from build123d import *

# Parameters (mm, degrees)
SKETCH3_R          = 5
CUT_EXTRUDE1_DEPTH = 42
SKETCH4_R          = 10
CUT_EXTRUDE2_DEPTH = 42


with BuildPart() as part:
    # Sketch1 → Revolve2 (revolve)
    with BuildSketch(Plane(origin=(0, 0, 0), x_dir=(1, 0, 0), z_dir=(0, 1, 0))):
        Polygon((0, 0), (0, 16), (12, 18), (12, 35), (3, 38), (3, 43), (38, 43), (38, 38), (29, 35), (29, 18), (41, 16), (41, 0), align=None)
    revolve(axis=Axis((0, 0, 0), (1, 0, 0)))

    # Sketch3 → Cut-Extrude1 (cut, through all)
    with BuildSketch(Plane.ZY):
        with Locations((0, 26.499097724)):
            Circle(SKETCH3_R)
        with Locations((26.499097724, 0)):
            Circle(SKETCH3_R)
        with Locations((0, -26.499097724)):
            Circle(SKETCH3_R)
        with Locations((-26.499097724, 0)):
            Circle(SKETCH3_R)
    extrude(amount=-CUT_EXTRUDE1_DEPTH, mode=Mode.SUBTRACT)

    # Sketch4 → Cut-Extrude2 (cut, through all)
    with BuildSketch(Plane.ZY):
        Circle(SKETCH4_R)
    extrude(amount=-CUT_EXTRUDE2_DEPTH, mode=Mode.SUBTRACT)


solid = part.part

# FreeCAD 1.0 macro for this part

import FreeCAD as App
import Part
import Sketcher
from FreeCAD import Vector
Q = App.Units.Quantity

doc = App.newDocument("Part")
body = doc.addObject("PartDesign::Body", "Body")

sketch1 = body.newObject("Sketcher::SketchObject", "Sketch")
sketch1.AttachmentSupport = (doc.getObject("XZ_Plane"), [""])
sketch1.MapMode = "FlatFace"
sketch1.addGeometry(Part.LineSegment(Vector(0, -16, 0), Vector(0, 0, 0)), False)
sketch1.addGeometry(Part.LineSegment(Vector(0, 0, 0), Vector(41, 0, 0)), False)
sketch1.addGeometry(Part.LineSegment(Vector(41, 0, 0), Vector(41, -16, 0)), False)
sketch1.addGeometry(Part.LineSegment(Vector(41, -16, 0), Vector(29, -18, 0)), False)
sketch1.addGeometry(Part.LineSegment(Vector(29, -18, 0), Vector(29, -35, 0)), False)
sketch1.addGeometry(Part.LineSegment(Vector(29, -35, 0), Vector(38, -38, 0)), False)
sketch1.addGeometry(Part.LineSegment(Vector(38, -38, 0), Vector(38, -43, 0)), False)
sketch1.addGeometry(Part.LineSegment(Vector(38, -43, 0), Vector(3, -43, 0)), False)
sketch1.addGeometry(Part.LineSegment(Vector(3, -43, 0), Vector(3, -38, 0)), False)
sketch1.addGeometry(Part.LineSegment(Vector(3, -38, 0), Vector(12, -35, 0)), False)
sketch1.addGeometry(Part.LineSegment(Vector(12, -35, 0), Vector(12, -18, 0)), False)
sketch1.addGeometry(Part.LineSegment(Vector(12, -18, 0), Vector(0, -16, 0)), False)
sketch1.addConstraint(Sketcher.Constraint("Coincident", 0, 2, 1, 1))
sketch1.addConstraint(Sketcher.Constraint("Coincident", 1, 2, 2, 1))
sketch1.addConstraint(Sketcher.Constraint("Coincident", 2, 2, 3, 1))
sketch1.addConstraint(Sketcher.Constraint("Coincident", 3, 2, 4, 1))
sketch1.addConstraint(Sketcher.Constraint("Coincident", 4, 2, 5, 1))
sketch1.addConstraint(Sketcher.Constraint("Coincident", 5, 2, 6, 1))
sketch1.addConstraint(Sketcher.Constraint("Coincident", 6, 2, 7, 1))
sketch1.addConstraint(Sketcher.Constraint("Coincident", 7, 2, 8, 1))
sketch1.addConstraint(Sketcher.Constraint("Coincident", 8, 2, 9, 1))
sketch1.addConstraint(Sketcher.Constraint("Coincident", 9, 2, 10, 1))
sketch1.addConstraint(Sketcher.Constraint("Coincident", 10, 2, 11, 1))
sketch1.addConstraint(Sketcher.Constraint("Coincident", 11, 2, 0, 1))
sketch1.addConstraint(Sketcher.Constraint("Vertical", 0))
sketch1.addConstraint(Sketcher.Constraint("Horizontal", 1))
sketch1.addConstraint(Sketcher.Constraint("Vertical", 2))
sketch1.addConstraint(Sketcher.Constraint("Vertical", 4))
sketch1.addConstraint(Sketcher.Constraint("Vertical", 6))
sketch1.addConstraint(Sketcher.Constraint("Horizontal", 7))
sketch1.addConstraint(Sketcher.Constraint("Vertical", 8))
sketch1.addConstraint(Sketcher.Constraint("Vertical", 10))
sketch1.addConstraint(Sketcher.Constraint("Coincident", 0, 2, -1, 1))
sketch1.addConstraint(Sketcher.Constraint("Horizontal", 5, 2, 8, 2))
sketch1.addConstraint(Sketcher.Constraint("Horizontal", 4, 2, 9, 2))
sketch1.addConstraint(Sketcher.Constraint("Horizontal", 3, 2, 10, 2))
sketch1.addConstraint(Sketcher.Constraint("Horizontal", 2, 2, 11, 2))
sketch1.addConstraint(Sketcher.Constraint("Equal", 5, 9))
sketch1.addConstraint(Sketcher.Constraint("Equal", 3, 11))
sketch1.addConstraint(Sketcher.Constraint("DistanceX", 1, 1, 1, 2, Q("41 mm")))
sketch1.addConstraint(Sketcher.Constraint("DistanceX", 7, 2, 7, 1, Q("35 mm")))
sketch1.addConstraint(Sketcher.Constraint("DistanceY", 0, 1, 0, 2, Q("16 mm")))
sketch1.addConstraint(Sketcher.Constraint("DistanceY", 4, 2, 4, 1, Q("17 mm")))
sketch1.addConstraint(Sketcher.Constraint("DistanceY", 6, 2, 6, 1, Q("5 mm")))
sketch1.addConstraint(Sketcher.Constraint("DistanceX", -1, 1, 3, 2, Q("29 mm")))
sketch1.addConstraint(Sketcher.Constraint("DistanceY", 3, 2, -1, 1, Q("18 mm")))
sketch1.addConstraint(Sketcher.Constraint("DistanceY", 5, 2, -1, 1, Q("38 mm")))
revolution = body.newObject("PartDesign::Revolution", "Revolution")
revolution.Profile = sketch1
revolution.ReferenceAxis = (sketch1, ["H_Axis"])
revolution.Angle = 360

sketch2 = body.newObject("Sketcher::SketchObject", "Sketch001")
sketch2.AttachmentSupport = (doc.getObject("YZ_Plane"), [""])
sketch2.MapMode = "FlatFace"
sketch2.addGeometry(Part.Circle(Vector(26, 0, 0), Vector(0, 0, 1), 5), False)
sketch2.addGeometry(Part.Circle(Vector(0, 26, 0), Vector(0, 0, 1), 5), False)
sketch2.addGeometry(Part.Circle(Vector(-26, 0, 0), Vector(0, 0, 1), 5), False)
sketch2.addGeometry(Part.Circle(Vector(0, -26, 0), Vector(0, 0, 1), 5), False)
sketch2.addConstraint(Sketcher.Constraint("Equal", 0, 1))
sketch2.addConstraint(Sketcher.Constraint("Equal", 1, 2))
sketch2.addConstraint(Sketcher.Constraint("Equal", 2, 3))
sketch2.addConstraint(Sketcher.Constraint("Symmetric", 0, 3, 2, 3, -1, 1))
sketch2.addConstraint(Sketcher.Constraint("Symmetric", 1, 3, 3, 3, -1, 1))
sketch2.addConstraint(Sketcher.Constraint("PointOnObject", 0, 3, -1))
sketch2.addConstraint(Sketcher.Constraint("PointOnObject", 1, 3, -2))
sketch2.addConstraint(Sketcher.Constraint("Diameter", 0, Q("10 mm")))
sketch2.addConstraint(Sketcher.Constraint("DistanceX", -1, 1, 0, 3, Q("26.499098 mm")))
sketch2.addConstraint(Sketcher.Constraint("DistanceY", -1, 1, 1, 3, Q("26.499098 mm")))
pocket1 = body.newObject("PartDesign::Pocket", "Pocket")
pocket1.Profile = sketch2
pocket1.Type = "ThroughAll"
pocket1.Reversed = True

sketch3 = body.newObject("Sketcher::SketchObject", "Sketch002")
sketch3.AttachmentSupport = (doc.getObject("YZ_Plane"), [""])
sketch3.MapMode = "FlatFace"
sketch3.addGeometry(Part.Circle(Vector(0, 0, 0), Vector(0, 0, 1), 10), False)
sketch3.addConstraint(Sketcher.Constraint("Coincident", 0, 3, -1, 1))
sketch3.addConstraint(Sketcher.Constraint("Diameter", 0, Q("20 mm")))
pocket2 = body.newObject("PartDesign::Pocket", "Pocket001")
pocket2.Profile = sketch3
pocket2.Type = "ThroughAll"
pocket2.Reversed = True

doc.recompute()
